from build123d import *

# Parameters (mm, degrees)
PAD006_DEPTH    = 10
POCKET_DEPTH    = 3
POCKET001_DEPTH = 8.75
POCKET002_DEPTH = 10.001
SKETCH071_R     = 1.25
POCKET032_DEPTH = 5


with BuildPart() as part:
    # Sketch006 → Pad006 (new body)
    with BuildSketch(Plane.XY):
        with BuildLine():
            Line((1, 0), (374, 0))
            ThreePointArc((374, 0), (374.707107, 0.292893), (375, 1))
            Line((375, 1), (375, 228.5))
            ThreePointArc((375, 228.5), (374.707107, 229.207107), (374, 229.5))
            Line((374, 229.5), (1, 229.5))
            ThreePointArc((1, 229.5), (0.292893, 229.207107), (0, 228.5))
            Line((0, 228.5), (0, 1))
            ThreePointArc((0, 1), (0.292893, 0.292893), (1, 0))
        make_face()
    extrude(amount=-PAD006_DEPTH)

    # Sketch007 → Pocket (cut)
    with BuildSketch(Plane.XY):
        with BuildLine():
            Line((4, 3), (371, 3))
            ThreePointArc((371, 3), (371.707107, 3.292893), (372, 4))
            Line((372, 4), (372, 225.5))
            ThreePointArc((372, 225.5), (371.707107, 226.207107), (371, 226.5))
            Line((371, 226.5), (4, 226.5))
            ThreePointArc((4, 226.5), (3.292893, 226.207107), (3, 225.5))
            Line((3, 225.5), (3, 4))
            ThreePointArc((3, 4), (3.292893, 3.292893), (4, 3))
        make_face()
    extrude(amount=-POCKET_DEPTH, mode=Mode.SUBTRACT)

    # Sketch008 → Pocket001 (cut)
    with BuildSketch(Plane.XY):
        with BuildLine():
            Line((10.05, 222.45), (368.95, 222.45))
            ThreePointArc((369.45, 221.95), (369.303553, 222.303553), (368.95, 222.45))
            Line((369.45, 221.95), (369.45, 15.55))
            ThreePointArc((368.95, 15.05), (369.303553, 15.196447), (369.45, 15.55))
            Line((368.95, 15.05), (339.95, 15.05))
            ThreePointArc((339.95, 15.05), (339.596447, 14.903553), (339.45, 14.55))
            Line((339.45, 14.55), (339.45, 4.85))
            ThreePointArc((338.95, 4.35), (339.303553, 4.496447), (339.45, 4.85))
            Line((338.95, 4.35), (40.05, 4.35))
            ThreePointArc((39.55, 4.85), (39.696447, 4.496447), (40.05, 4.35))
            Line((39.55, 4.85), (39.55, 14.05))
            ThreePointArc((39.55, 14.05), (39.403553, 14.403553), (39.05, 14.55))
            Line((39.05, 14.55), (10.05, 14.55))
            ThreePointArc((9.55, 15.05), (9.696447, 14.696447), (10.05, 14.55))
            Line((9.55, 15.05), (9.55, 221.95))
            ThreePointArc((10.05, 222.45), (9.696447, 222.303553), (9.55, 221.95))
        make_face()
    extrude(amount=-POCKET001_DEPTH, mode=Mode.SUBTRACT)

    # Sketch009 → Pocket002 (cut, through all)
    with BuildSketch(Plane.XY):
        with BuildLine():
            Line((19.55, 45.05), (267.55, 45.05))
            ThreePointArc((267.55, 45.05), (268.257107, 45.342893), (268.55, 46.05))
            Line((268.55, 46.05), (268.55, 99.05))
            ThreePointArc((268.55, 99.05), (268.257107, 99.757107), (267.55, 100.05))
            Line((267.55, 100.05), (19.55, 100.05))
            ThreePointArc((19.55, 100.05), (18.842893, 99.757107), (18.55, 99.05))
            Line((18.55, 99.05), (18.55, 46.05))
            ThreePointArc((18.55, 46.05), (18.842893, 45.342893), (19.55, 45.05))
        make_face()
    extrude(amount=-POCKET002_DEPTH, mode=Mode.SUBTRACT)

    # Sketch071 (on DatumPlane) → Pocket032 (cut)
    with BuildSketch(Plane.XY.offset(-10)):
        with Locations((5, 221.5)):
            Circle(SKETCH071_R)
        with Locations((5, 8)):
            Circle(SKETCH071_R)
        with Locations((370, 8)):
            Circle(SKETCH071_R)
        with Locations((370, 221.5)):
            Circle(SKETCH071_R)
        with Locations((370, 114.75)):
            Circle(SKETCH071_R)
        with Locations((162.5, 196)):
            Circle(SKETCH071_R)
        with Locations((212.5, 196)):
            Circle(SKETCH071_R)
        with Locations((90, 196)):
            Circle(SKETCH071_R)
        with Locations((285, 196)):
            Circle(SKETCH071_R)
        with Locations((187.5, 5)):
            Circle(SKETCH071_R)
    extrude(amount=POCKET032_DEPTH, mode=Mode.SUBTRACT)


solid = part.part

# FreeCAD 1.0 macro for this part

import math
import FreeCAD as App
import Part
import Sketcher

V = App.Vector

doc = App.newDocument("Part")
body = doc.addObject("PartDesign::Body", "Body")

# Sketch on XY plane
sketch1 = body.newObject("Sketcher::SketchObject", "Sketch")
sketch1.AttachmentSupport = (doc.getObject("XY_Plane"), [""])
sketch1.MapMode = "FlatFace"
sketch1.addGeometry(Part.LineSegment(V(1, 0, 0), V(374, 0, 0)), False)
sketch1.addGeometry(Part.ArcOfCircle(Part.Circle(V(374.000001, 0.999999, 0), V(0, 0, 1), 0.999999), math.radians(-90.000043), math.radians(0.000043)), False)
sketch1.addGeometry(Part.LineSegment(V(375, 1, 0), V(375, 228.5, 0)), False)
sketch1.addGeometry(Part.ArcOfCircle(Part.Circle(V(374.000001, 228.500001, 0), V(0, 0, 1), 0.999999), math.radians(-0.000043), math.radians(90.000043)), False)
sketch1.addGeometry(Part.LineSegment(V(374, 229.5, 0), V(1, 229.5, 0)), False)
sketch1.addGeometry(Part.ArcOfCircle(Part.Circle(V(0.999999, 228.500001, 0), V(0, 0, 1), 0.999999), math.radians(89.999957), math.radians(180.000043)), False)
sketch1.addGeometry(Part.LineSegment(V(0, 228.5, 0), V(0, 1, 0)), False)
sketch1.addGeometry(Part.ArcOfCircle(Part.Circle(V(0.999999, 0.999999, 0), V(0, 0, 1), 0.999999), math.radians(179.999957), math.radians(270.000043)), False)
sketch1.addConstraint(Sketcher.Constraint("Tangent", 0, 2, 1, 1))
sketch1.addConstraint(Sketcher.Constraint("Tangent", 1, 2, 2, 1))
sketch1.addConstraint(Sketcher.Constraint("Tangent", 2, 2, 3, 1))
sketch1.addConstraint(Sketcher.Constraint("Tangent", 3, 2, 4, 1))
sketch1.addConstraint(Sketcher.Constraint("Tangent", 4, 2, 5, 1))
sketch1.addConstraint(Sketcher.Constraint("Tangent", 5, 2, 6, 1))
sketch1.addConstraint(Sketcher.Constraint("Tangent", 6, 2, 7, 1))
sketch1.addConstraint(Sketcher.Constraint("Tangent", 7, 2, 0, 1))
sketch1.addConstraint(Sketcher.Constraint("Horizontal", 0))
sketch1.addConstraint(Sketcher.Constraint("Vertical", 2))
sketch1.addConstraint(Sketcher.Constraint("Horizontal", 4))
sketch1.addConstraint(Sketcher.Constraint("Vertical", 6))
sketch1.addConstraint(Sketcher.Constraint("Equal", 1, 3))
sketch1.addConstraint(Sketcher.Constraint("Equal", 3, 5))
sketch1.addConstraint(Sketcher.Constraint("Equal", 5, 7))
sketch1.addConstraint(Sketcher.Constraint("PointOnObject", 0, 2, -1))
sketch1.addConstraint(Sketcher.Constraint("PointOnObject", 5, 2, -2))
sketch1.addConstraint(Sketcher.Constraint("Radius", 1, 0.999999))
sketch1.addConstraint(Sketcher.Constraint("DistanceX", 0, 1, 0, 2, 373.0))
sketch1.addConstraint(Sketcher.Constraint("DistanceY", 2, 1, 2, 2, 227.5))
pad1 = body.newObject("PartDesign::Pad", "Pad")
pad1.Profile = sketch1
pad1.Length = 10
pad1.Reversed = True

# Sketch on XY plane
sketch2 = body.newObject("Sketcher::SketchObject", "Sketch001")
sketch2.AttachmentSupport = (doc.getObject("XY_Plane"), [""])
sketch2.MapMode = "FlatFace"
sketch2.addGeometry(Part.LineSegment(V(4, 3, 0), V(371, 3, 0)), False)
sketch2.addGeometry(Part.ArcOfCircle(Part.Circle(V(371.000001, 3.999999, 0), V(0, 0, 1), 0.999999), math.radians(-90.000043), math.radians(0.000043)), False)
sketch2.addGeometry(Part.LineSegment(V(372, 4, 0), V(372, 225.5, 0)), False)
sketch2.addGeometry(Part.ArcOfCircle(Part.Circle(V(371.000001, 225.500001, 0), V(0, 0, 1), 0.999999), math.radians(-0.000043), math.radians(90.000043)), False)
sketch2.addGeometry(Part.LineSegment(V(371, 226.5, 0), V(4, 226.5, 0)), False)
sketch2.addGeometry(Part.ArcOfCircle(Part.Circle(V(3.999999, 225.500001, 0), V(0, 0, 1), 0.999999), math.radians(89.999957), math.radians(180.000043)), False)
sketch2.addGeometry(Part.LineSegment(V(3, 225.5, 0), V(3, 4, 0)), False)
sketch2.addGeometry(Part.ArcOfCircle(Part.Circle(V(3.999999, 3.999999, 0), V(0, 0, 1), 0.999999), math.radians(179.999957), math.radians(270.000043)), False)
sketch2.addConstraint(Sketcher.Constraint("Tangent", 0, 2, 1, 1))
sketch2.addConstraint(Sketcher.Constraint("Tangent", 1, 2, 2, 1))
sketch2.addConstraint(Sketcher.Constraint("Tangent", 2, 2, 3, 1))
sketch2.addConstraint(Sketcher.Constraint("Tangent", 3, 2, 4, 1))
sketch2.addConstraint(Sketcher.Constraint("Tangent", 4, 2, 5, 1))
sketch2.addConstraint(Sketcher.Constraint("Tangent", 5, 2, 6, 1))
sketch2.addConstraint(Sketcher.Constraint("Tangent", 6, 2, 7, 1))
sketch2.addConstraint(Sketcher.Constraint("Tangent", 7, 2, 0, 1))
sketch2.addConstraint(Sketcher.Constraint("Horizontal", 0))
sketch2.addConstraint(Sketcher.Constraint("Vertical", 2))
sketch2.addConstraint(Sketcher.Constraint("Horizontal", 4))
sketch2.addConstraint(Sketcher.Constraint("Vertical", 6))
sketch2.addConstraint(Sketcher.Constraint("Equal", 1, 3))
sketch2.addConstraint(Sketcher.Constraint("Equal", 3, 5))
sketch2.addConstraint(Sketcher.Constraint("Equal", 5, 7))
sketch2.addConstraint(Sketcher.Constraint("Radius", 1, 0.999999))
sketch2.addConstraint(Sketcher.Constraint("DistanceX", 0, 1, 0, 2, 367.0))
sketch2.addConstraint(Sketcher.Constraint("DistanceY", 2, 1, 2, 2, 221.5))
sketch2.addConstraint(Sketcher.Constraint("DistanceX", -1, 1, 1, 3, 371.000001))
sketch2.addConstraint(Sketcher.Constraint("DistanceY", -1, 1, 1, 3, 3.999999))
pocket1 = body.newObject("PartDesign::Pocket", "Pocket")
pocket1.Profile = sketch2
pocket1.Length = 3

# Sketch on XY plane
sketch3 = body.newObject("Sketcher::SketchObject", "Sketch002")
sketch3.AttachmentSupport = (doc.getObject("XY_Plane"), [""])
sketch3.MapMode = "FlatFace"
sketch3.addGeometry(Part.LineSegment(V(368.95, 222.45, 0), V(10.05, 222.45, 0)), False)
sketch3.addGeometry(Part.ArcOfCircle(Part.Circle(V(10.050001, 221.949999, 0), V(0, 0, 1), 0.500001), math.radians(90.000153), math.radians(179.999847)), False)
sketch3.addGeometry(Part.LineSegment(V(9.55, 221.95, 0), V(9.55, 15.05, 0)), False)
sketch3.addGeometry(Part.ArcOfCircle(Part.Circle(V(10.050001, 15.050001, 0), V(0, 0, 1), 0.500001), math.radians(-179.999847), math.radians(-90.000153)), False)
sketch3.addGeometry(Part.LineSegment(V(10.05, 14.55, 0), V(39.05, 14.55, 0)), False)
sketch3.addGeometry(Part.ArcOfCircle(Part.Circle(V(39.049999, 14.049999, 0), V(0, 0, 1), 0.500001), math.radians(0.000153), math.radians(89.999847)), False)
sketch3.addGeometry(Part.LineSegment(V(39.55, 14.05, 0), V(39.55, 4.85, 0)), False)
sketch3.addGeometry(Part.ArcOfCircle(Part.Circle(V(40.050001, 4.850001, 0), V(0, 0, 1), 0.500001), math.radians(-179.999847), math.radians(-90.000153)), False)
sketch3.addGeometry(Part.LineSegment(V(40.05, 4.35, 0), V(338.95, 4.35, 0)), False)
sketch3.addGeometry(Part.ArcOfCircle(Part.Circle(V(338.949999, 4.850001, 0), V(0, 0, 1), 0.500001), math.radians(-89.999847), math.radians(-0.000153)), False)
sketch3.addGeometry(Part.LineSegment(V(339.45, 4.85, 0), V(339.45, 14.55, 0)), False)
sketch3.addGeometry(Part.ArcOfCircle(Part.Circle(V(339.950001, 14.549999, 0), V(0, 0, 1), 0.500001), math.radians(90.000153), math.radians(179.999847)), False)
sketch3.addGeometry(Part.LineSegment(V(339.95, 15.05, 0), V(368.95, 15.05, 0)), False)
sketch3.addGeometry(Part.ArcOfCircle(Part.Circle(V(368.949999, 15.550001, 0), V(0, 0, 1), 0.500001), math.radians(-89.999847), math.radians(-0.000153)), False)
sketch3.addGeometry(Part.LineSegment(V(369.45, 15.55, 0), V(369.45, 221.95, 0)), False)
sketch3.addGeometry(Part.ArcOfCircle(Part.Circle(V(368.949999, 221.949999, 0), V(0, 0, 1), 0.500001), math.radians(0.000153), math.radians(89.999847)), False)
sketch3.addConstraint(Sketcher.Constraint("Coincident", 0, 2, 1, 1))
sketch3.addConstraint(Sketcher.Constraint("Coincident", 1, 2, 2, 1))
sketch3.addConstraint(Sketcher.Constraint("Coincident", 2, 2, 3, 1))
sketch3.addConstraint(Sketcher.Constraint("Coincident", 3, 2, 4, 1))
sketch3.addConstraint(Sketcher.Constraint("Coincident", 4, 2, 5, 2))
sketch3.addConstraint(Sketcher.Constraint("Coincident", 5, 1, 6, 1))
sketch3.addConstraint(Sketcher.Constraint("Coincident", 6, 2, 7, 1))
sketch3.addConstraint(Sketcher.Constraint("Coincident", 7, 2, 8, 1))
sketch3.addConstraint(Sketcher.Constraint("Coincident", 8, 2, 9, 1))
sketch3.addConstraint(Sketcher.Constraint("Coincident", 9, 2, 10, 1))
sketch3.addConstraint(Sketcher.Constraint("Coincident", 10, 2, 11, 2))
sketch3.addConstraint(Sketcher.Constraint("Coincident", 11, 1, 12, 1))
sketch3.addConstraint(Sketcher.Constraint("Coincident", 12, 2, 13, 1))
sketch3.addConstraint(Sketcher.Constraint("Coincident", 13, 2, 14, 1))
sketch3.addConstraint(Sketcher.Constraint("Coincident", 14, 2, 15, 1))
sketch3.addConstraint(Sketcher.Constraint("Coincident", 15, 2, 0, 1))
sketch3.addConstraint(Sketcher.Constraint("Horizontal", 0))
sketch3.addConstraint(Sketcher.Constraint("Vertical", 2))
sketch3.addConstraint(Sketcher.Constraint("Horizontal", 4))
sketch3.addConstraint(Sketcher.Constraint("Vertical", 6))
sketch3.addConstraint(Sketcher.Constraint("Horizontal", 8))
sketch3.addConstraint(Sketcher.Constraint("Vertical", 10))
sketch3.addConstraint(Sketcher.Constraint("Horizontal", 12))
sketch3.addConstraint(Sketcher.Constraint("Vertical", 14))
sketch3.addConstraint(Sketcher.Constraint("Equal", 1, 3))
sketch3.addConstraint(Sketcher.Constraint("Equal", 3, 5))
sketch3.addConstraint(Sketcher.Constraint("Equal", 5, 7))
sketch3.addConstraint(Sketcher.Constraint("Equal", 7, 9))
sketch3.addConstraint(Sketcher.Constraint("Equal", 9, 11))
sketch3.addConstraint(Sketcher.Constraint("Equal", 11, 13))
sketch3.addConstraint(Sketcher.Constraint("Equal", 13, 15))
sketch3.addConstraint(Sketcher.Constraint("Horizontal", 15, 3, 1, 2))
sketch3.addConstraint(Sketcher.Constraint("Horizontal", 3, 3, 2, 2))
sketch3.addConstraint(Sketcher.Constraint("Horizontal", 11, 3, 3, 2))
sketch3.addConstraint(Sketcher.Constraint("Horizontal", 9, 3, 6, 2))
sketch3.addConstraint(Sketcher.Constraint("Horizontal", 6, 2, 9, 2))
sketch3.addConstraint(Sketcher.Constraint("Horizontal", 4, 2, 10, 2))
sketch3.addConstraint(Sketcher.Constraint("Horizontal", 1, 2, 14, 2))
sketch3.addConstraint(Sketcher.Constraint("Vertical", 3, 3, 0, 2))
sketch3.addConstraint(Sketcher.Constraint("Vertical", 0, 2, 3, 2))
sketch3.addConstraint(Sketcher.Constraint("Vertical", 5, 3, 4, 2))
sketch3.addConstraint(Sketcher.Constraint("Vertical", 9, 3, 8, 2))
sketch3.addConstraint(Sketcher.Constraint("Vertical", 15, 3, 12, 2))
sketch3.addConstraint(Sketcher.Constraint("Vertical", 12, 2, 15, 2))
sketch3.addConstraint(Sketcher.Constraint("Equal", 4, 12))
sketch3.addConstraint(Sketcher.Constraint("Radius", 1, 0.500001))
sketch3.addConstraint(Sketcher.Constraint("DistanceX", 4, 1, 4, 2, 29.0))
sketch3.addConstraint(Sketcher.Constraint("DistanceX", 0, 2, 0, 1, 358.9))
sketch3.addConstraint(Sketcher.Constraint("DistanceX", 8, 1, 8, 2, 298.9))
sketch3.addConstraint(Sketcher.Constraint("DistanceY", 2, 2, 2, 1, 206.9))
sketch3.addConstraint(Sketcher.Constraint("DistanceY", 6, 2, 6, 1, 9.2))
sketch3.addConstraint(Sketcher.Constraint("DistanceY", 10, 1, 10, 2, 9.7))
sketch3.addConstraint(Sketcher.Constraint("DistanceY", 14, 1, 14, 2, 206.4))
sketch3.addConstraint(Sketcher.Constraint("DistanceX", 9, 3, 13, 3, 30.0))
sketch3.addConstraint(Sketcher.Constraint("DistanceX", -1, 1, 1, 3, 10.050001))
sketch3.addConstraint(Sketcher.Constraint("DistanceY", -1, 1, 1, 3, 221.949999))
pocket2 = body.newObject("PartDesign::Pocket", "Pocket001")
pocket2.Profile = sketch3
pocket2.Length = 8.75

# Sketch on XY plane
sketch4 = body.newObject("Sketcher::SketchObject", "Sketch003")
sketch4.AttachmentSupport = (doc.getObject("XY_Plane"), [""])
sketch4.MapMode = "FlatFace"
sketch4.addGeometry(Part.LineSegment(V(19.55, 45.05, 0), V(267.55, 45.05, 0)), False)
sketch4.addGeometry(Part.ArcOfCircle(Part.Circle(V(267.550001, 46.049999, 0), V(0, 0, 1), 0.999999), math.radians(-90.000043), math.radians(0.000043)), False)
sketch4.addGeometry(Part.LineSegment(V(268.55, 46.05, 0), V(268.55, 99.05, 0)), False)
sketch4.addGeometry(Part.ArcOfCircle(Part.Circle(V(267.550001, 99.050001, 0), V(0, 0, 1), 0.999999), math.radians(-0.000043), math.radians(90.000043)), False)
sketch4.addGeometry(Part.LineSegment(V(267.55, 100.05, 0), V(19.55, 100.05, 0)), False)
sketch4.addGeometry(Part.ArcOfCircle(Part.Circle(V(19.549999, 99.050001, 0), V(0, 0, 1), 0.999999), math.radians(89.999957), math.radians(180.000043)), False)
sketch4.addGeometry(Part.LineSegment(V(18.55, 99.05, 0), V(18.55, 46.05, 0)), False)
sketch4.addGeometry(Part.ArcOfCircle(Part.Circle(V(19.549999, 46.049999, 0), V(0, 0, 1), 0.999999), math.radians(179.999957), math.radians(270.000043)), False)
sketch4.addConstraint(Sketcher.Constraint("Tangent", 0, 2, 1, 1))
sketch4.addConstraint(Sketcher.Constraint("Tangent", 1, 2, 2, 1))
sketch4.addConstraint(Sketcher.Constraint("Tangent", 2, 2, 3, 1))
sketch4.addConstraint(Sketcher.Constraint("Tangent", 3, 2, 4, 1))
sketch4.addConstraint(Sketcher.Constraint("Tangent", 4, 2, 5, 1))
sketch4.addConstraint(Sketcher.Constraint("Tangent", 5, 2, 6, 1))
sketch4.addConstraint(Sketcher.Constraint("Tangent", 6, 2, 7, 1))
sketch4.addConstraint(Sketcher.Constraint("Tangent", 7, 2, 0, 1))
sketch4.addConstraint(Sketcher.Constraint("Horizontal", 0))
sketch4.addConstraint(Sketcher.Constraint("Vertical", 2))
sketch4.addConstraint(Sketcher.Constraint("Horizontal", 4))
sketch4.addConstraint(Sketcher.Constraint("Vertical", 6))
sketch4.addConstraint(Sketcher.Constraint("Equal", 1, 3))
sketch4.addConstraint(Sketcher.Constraint("Equal", 3, 5))
sketch4.addConstraint(Sketcher.Constraint("Equal", 5, 7))
sketch4.addConstraint(Sketcher.Constraint("Radius", 1, 0.999999))
sketch4.addConstraint(Sketcher.Constraint("DistanceX", 0, 1, 0, 2, 248.0))
sketch4.addConstraint(Sketcher.Constraint("DistanceY", 2, 1, 2, 2, 53.0))
sketch4.addConstraint(Sketcher.Constraint("DistanceX", -1, 1, 1, 3, 267.550001))
sketch4.addConstraint(Sketcher.Constraint("DistanceY", -1, 1, 1, 3, 46.049999))
pocket3 = body.newObject("PartDesign::Pocket", "Pocket002")
pocket3.Profile = sketch4
pocket3.Type = "ThroughAll"

# Sketch on XY plane
sketch5 = body.newObject("Sketcher::SketchObject", "Sketch004")
sketch5.AttachmentSupport = (doc.getObject("XY_Plane"), [""])
sketch5.MapMode = "FlatFace"
sketch5.AttachmentOffset = App.Placement(V(0, 0, -10), App.Rotation())
sketch5.addGeometry(Part.Circle(V(5, 221.5, 0), V(0, 0, 1), 1.25), False)
sketch5.addGeometry(Part.Circle(V(5, 8, 0), V(0, 0, 1), 1.25), False)
sketch5.addGeometry(Part.Circle(V(370, 8, 0), V(0, 0, 1), 1.25), False)
sketch5.addGeometry(Part.Circle(V(370, 221.5, 0), V(0, 0, 1), 1.25), False)
sketch5.addGeometry(Part.Circle(V(370, 114.75, 0), V(0, 0, 1), 1.25), False)
sketch5.addGeometry(Part.Circle(V(162.5, 196, 0), V(0, 0, 1), 1.25), False)
sketch5.addGeometry(Part.Circle(V(212.5, 196, 0), V(0, 0, 1), 1.25), False)
sketch5.addGeometry(Part.Circle(V(90, 196, 0), V(0, 0, 1), 1.25), False)
sketch5.addGeometry(Part.Circle(V(285, 196, 0), V(0, 0, 1), 1.25), False)
sketch5.addGeometry(Part.Circle(V(187.5, 5, 0), V(0, 0, 1), 1.25), False)
sketch5.addConstraint(Sketcher.Constraint("Equal", 0, 1))
sketch5.addConstraint(Sketcher.Constraint("Equal", 1, 2))
sketch5.addConstraint(Sketcher.Constraint("Equal", 2, 3))
sketch5.addConstraint(Sketcher.Constraint("Equal", 3, 4))
sketch5.addConstraint(Sketcher.Constraint("Equal", 4, 5))
sketch5.addConstraint(Sketcher.Constraint("Equal", 5, 6))
sketch5.addConstraint(Sketcher.Constraint("Equal", 6, 7))
sketch5.addConstraint(Sketcher.Constraint("Equal", 7, 8))
sketch5.addConstraint(Sketcher.Constraint("Equal", 8, 9))
sketch5.addConstraint(Sketcher.Constraint("Horizontal", 1, 3, 2, 3))
sketch5.addConstraint(Sketcher.Constraint("Horizontal", 0, 3, 3, 3))
sketch5.addConstraint(Sketcher.Constraint("Horizontal", 5, 3, 6, 3))
sketch5.addConstraint(Sketcher.Constraint("Horizontal", 6, 3, 7, 3))
sketch5.addConstraint(Sketcher.Constraint("Horizontal", 7, 3, 8, 3))
sketch5.addConstraint(Sketcher.Constraint("Vertical", 0, 3, 1, 3))
sketch5.addConstraint(Sketcher.Constraint("Vertical", 2, 3, 3, 3))
sketch5.addConstraint(Sketcher.Constraint("Vertical", 3, 3, 4, 3))
sketch5.addConstraint(Sketcher.Constraint("Diameter", 0, 2.5))
sketch5.addConstraint(Sketcher.Constraint("DistanceX", -1, 1, 0, 3, 5.0))
sketch5.addConstraint(Sketcher.Constraint("DistanceY", -1, 1, 1, 3, 8.0))
sketch5.addConstraint(Sketcher.Constraint("DistanceX", -1, 1, 2, 3, 370.0))
sketch5.addConstraint(Sketcher.Constraint("DistanceY", -1, 1, 5, 3, 196.0))
sketch5.addConstraint(Sketcher.Constraint("DistanceX", -1, 1, 7, 3, 90.0))
sketch5.addConstraint(Sketcher.Constraint("DistanceX", -1, 1, 8, 3, 285.0))
sketch5.addConstraint(Sketcher.Constraint("DistanceY", -1, 1, 9, 3, 5.0))
sketch5.addConstraint(Sketcher.Constraint("DistanceX", 5, 3, 6, 3, 50.0))
sketch5.addConstraint(Sketcher.Constraint("DistanceX", 5, 3, 9, 3, 25.0))
sketch5.addConstraint(Sketcher.Constraint("DistanceY", -1, 1, 0, 3, 221.5))
sketch5.addConstraint(Sketcher.Constraint("DistanceX", -1, 1, 5, 3, 162.5))
sketch5.addConstraint(Sketcher.Constraint("DistanceY", -1, 1, 4, 3, 114.75))
pocket4 = body.newObject("PartDesign::Pocket", "Pocket003")
pocket4.Profile = sketch5
pocket4.Length = 5
pocket4.Reversed = True

doc.recompute()
